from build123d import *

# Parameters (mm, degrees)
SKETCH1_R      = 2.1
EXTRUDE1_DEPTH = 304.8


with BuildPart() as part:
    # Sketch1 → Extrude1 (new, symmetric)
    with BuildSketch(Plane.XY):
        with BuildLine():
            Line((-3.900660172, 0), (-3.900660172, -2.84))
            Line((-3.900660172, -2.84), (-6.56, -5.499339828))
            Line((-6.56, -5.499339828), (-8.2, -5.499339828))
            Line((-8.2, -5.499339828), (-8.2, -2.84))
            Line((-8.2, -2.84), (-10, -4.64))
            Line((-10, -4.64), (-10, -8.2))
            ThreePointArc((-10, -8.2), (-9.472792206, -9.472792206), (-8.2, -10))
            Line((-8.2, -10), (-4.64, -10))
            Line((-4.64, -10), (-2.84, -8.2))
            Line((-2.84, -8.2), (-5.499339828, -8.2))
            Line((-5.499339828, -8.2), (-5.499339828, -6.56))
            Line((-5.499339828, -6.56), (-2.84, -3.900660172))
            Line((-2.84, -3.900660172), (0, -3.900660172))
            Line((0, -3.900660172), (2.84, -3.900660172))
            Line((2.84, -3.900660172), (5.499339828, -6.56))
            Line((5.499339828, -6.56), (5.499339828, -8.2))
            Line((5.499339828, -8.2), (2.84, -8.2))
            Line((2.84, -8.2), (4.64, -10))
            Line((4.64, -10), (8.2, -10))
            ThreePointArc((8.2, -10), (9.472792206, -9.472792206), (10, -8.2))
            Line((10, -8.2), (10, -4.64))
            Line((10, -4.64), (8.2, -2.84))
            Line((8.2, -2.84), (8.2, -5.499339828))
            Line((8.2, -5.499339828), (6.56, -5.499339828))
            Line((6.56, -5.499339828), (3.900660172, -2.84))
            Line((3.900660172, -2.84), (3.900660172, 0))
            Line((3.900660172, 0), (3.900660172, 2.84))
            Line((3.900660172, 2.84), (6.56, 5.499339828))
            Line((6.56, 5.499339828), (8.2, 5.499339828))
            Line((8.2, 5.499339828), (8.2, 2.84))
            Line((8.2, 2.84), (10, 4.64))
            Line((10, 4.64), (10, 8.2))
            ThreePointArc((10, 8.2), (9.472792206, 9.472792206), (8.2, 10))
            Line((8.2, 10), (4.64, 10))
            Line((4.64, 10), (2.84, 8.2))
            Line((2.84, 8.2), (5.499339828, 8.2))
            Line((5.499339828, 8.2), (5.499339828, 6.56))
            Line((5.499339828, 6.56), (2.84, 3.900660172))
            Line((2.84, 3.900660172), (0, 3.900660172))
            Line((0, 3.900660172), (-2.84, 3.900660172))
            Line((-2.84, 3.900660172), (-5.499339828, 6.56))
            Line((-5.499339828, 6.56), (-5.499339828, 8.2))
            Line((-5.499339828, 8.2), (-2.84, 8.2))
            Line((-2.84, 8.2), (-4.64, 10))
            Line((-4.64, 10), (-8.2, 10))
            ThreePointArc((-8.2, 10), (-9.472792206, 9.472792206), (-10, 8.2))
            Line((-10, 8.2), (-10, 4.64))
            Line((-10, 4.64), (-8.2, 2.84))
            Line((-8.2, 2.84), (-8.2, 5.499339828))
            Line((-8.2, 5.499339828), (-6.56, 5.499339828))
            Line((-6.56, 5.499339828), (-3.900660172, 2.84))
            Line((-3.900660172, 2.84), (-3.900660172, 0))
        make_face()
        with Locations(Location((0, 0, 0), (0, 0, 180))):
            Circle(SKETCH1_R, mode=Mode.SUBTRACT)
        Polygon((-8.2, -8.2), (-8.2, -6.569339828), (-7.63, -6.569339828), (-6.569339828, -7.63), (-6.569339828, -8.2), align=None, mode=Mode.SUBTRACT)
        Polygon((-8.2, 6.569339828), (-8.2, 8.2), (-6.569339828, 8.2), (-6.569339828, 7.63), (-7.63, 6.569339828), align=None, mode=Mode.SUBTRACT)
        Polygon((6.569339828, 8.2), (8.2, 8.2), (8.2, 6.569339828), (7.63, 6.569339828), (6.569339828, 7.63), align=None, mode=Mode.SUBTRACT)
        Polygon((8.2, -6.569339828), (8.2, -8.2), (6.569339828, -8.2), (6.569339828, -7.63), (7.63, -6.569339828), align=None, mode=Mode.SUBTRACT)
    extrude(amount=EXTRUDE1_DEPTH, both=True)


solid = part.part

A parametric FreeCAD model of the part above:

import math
import FreeCAD as App
import Part
import Sketcher

V = App.Vector
Q = App.Units.Quantity

doc = App.newDocument("Part")
params = doc.addObject("Spreadsheet::Sheet", "Params")
for row, (alias, value) in enumerate([
    ("sketch1_diameter", "4.2 mm"),
    ("sketch1_radius", "1.8 mm"),
    ("sketch1_length", "1.5 mm"),
    ("sketch1_width", "1.64 mm"),
    ("sketch1_width2", "3.56 mm"),
    ("pad1_length", "609.6 mm"),
], start=1):
    params.set(f"A{row}", alias)
    params.set(f"B{row}", "=" + value)
    params.setAlias(f"B{row}", alias)

body = doc.addObject("PartDesign::Body", "Body")

# Sketch on XY plane
sketch1 = body.newObject("Sketcher::SketchObject", "Sketch")
sketch1.AttachmentSupport = (doc.getObject("XY_Plane"), [""])
sketch1.MapMode = "FlatFace"
sketch1.addGeometry([
    Part.LineSegment(V(-3.9, -2.8, 0), V(-6.6, -5.5, 0)),  # 0
    Part.LineSegment(V(-6.6, -5.5, 0), V(-8.2, -5.5, 0)),  # 1
    Part.LineSegment(V(-8.2, -5.5, 0), V(-8.2, -2.8, 0)),  # 2
    Part.LineSegment(V(-8.2, -2.8, 0), V(-10, -4.6, 0)),  # 3
    Part.LineSegment(V(-10, -4.6, 0), V(-10, -8.2, 0)),  # 4
    Part.ArcOfCircle(Part.Circle(V(-8.2, -8.2, 0), V(0, 0, 1), 1.8), math.radians(180), math.radians(270)),  # 5
    Part.LineSegment(V(-8.2, -10, 0), V(-4.6, -10, 0)),  # 6
    Part.LineSegment(V(-4.6, -10, 0), V(-2.8, -8.2, 0)),  # 7
    Part.LineSegment(V(-2.8, -8.2, 0), V(-5.5, -8.2, 0)),  # 8
    Part.LineSegment(V(-5.5, -8.2, 0), V(-5.5, -6.6, 0)),  # 9
    Part.LineSegment(V(-5.5, -6.6, 0), V(-2.8, -3.9, 0)),  # 10
    Part.LineSegment(V(-2.8, -3.9, 0), V(2.8, -3.9, 0)),  # 11
    Part.LineSegment(V(2.8, -3.9, 0), V(5.5, -6.6, 0)),  # 12
    Part.LineSegment(V(5.5, -6.6, 0), V(5.5, -8.2, 0)),  # 13
    Part.LineSegment(V(5.5, -8.2, 0), V(2.8, -8.2, 0)),  # 14
    Part.LineSegment(V(2.8, -8.2, 0), V(4.6, -10, 0)),  # 15
    Part.LineSegment(V(4.6, -10, 0), V(8.2, -10, 0)),  # 16
    Part.ArcOfCircle(Part.Circle(V(8.2, -8.2, 0), V(0, 0, 1), 1.8), math.radians(-90), math.radians(0)),  # 17
    Part.LineSegment(V(10, -8.2, 0), V(10, -4.6, 0)),  # 18
    Part.LineSegment(V(10, -4.6, 0), V(8.2, -2.8, 0)),  # 19
    Part.LineSegment(V(8.2, -2.8, 0), V(8.2, -5.5, 0)),  # 20
    Part.LineSegment(V(8.2, -5.5, 0), V(6.6, -5.5, 0)),  # 21
    Part.LineSegment(V(6.6, -5.5, 0), V(3.9, -2.8, 0)),  # 22
    Part.LineSegment(V(3.9, -2.8, 0), V(3.9, 2.8, 0)),  # 23
    Part.LineSegment(V(3.9, 2.8, 0), V(6.6, 5.5, 0)),  # 24
    Part.LineSegment(V(6.6, 5.5, 0), V(8.2, 5.5, 0)),  # 25
    Part.LineSegment(V(8.2, 5.5, 0), V(8.2, 2.8, 0)),  # 26
    Part.LineSegment(V(8.2, 2.8, 0), V(10, 4.6, 0)),  # 27
    Part.LineSegment(V(10, 4.6, 0), V(10, 8.2, 0)),  # 28
    Part.ArcOfCircle(Part.Circle(V(8.2, 8.2, 0), V(0, 0, 1), 1.8), math.radians(0), math.radians(90)),  # 29
    Part.LineSegment(V(8.2, 10, 0), V(4.6, 10, 0)),  # 30
    Part.LineSegment(V(4.6, 10, 0), V(2.8, 8.2, 0)),  # 31
    Part.LineSegment(V(2.8, 8.2, 0), V(5.5, 8.2, 0)),  # 32
    Part.LineSegment(V(5.5, 8.2, 0), V(5.5, 6.6, 0)),  # 33
    Part.LineSegment(V(5.5, 6.6, 0), V(2.8, 3.9, 0)),  # 34
    Part.LineSegment(V(2.8, 3.9, 0), V(-2.8, 3.9, 0)),  # 35
    Part.LineSegment(V(-2.8, 3.9, 0), V(-5.5, 6.6, 0)),  # 36
    Part.LineSegment(V(-5.5, 6.6, 0), V(-5.5, 8.2, 0)),  # 37
    Part.LineSegment(V(-5.5, 8.2, 0), V(-2.8, 8.2, 0)),  # 38
    Part.LineSegment(V(-2.8, 8.2, 0), V(-4.6, 10, 0)),  # 39
    Part.LineSegment(V(-4.6, 10, 0), V(-8.2, 10, 0)),  # 40
    Part.ArcOfCircle(Part.Circle(V(-8.2, 8.2, 0), V(0, 0, 1), 1.8), math.radians(90), math.radians(180)),  # 41
    Part.LineSegment(V(-10, 8.2, 0), V(-10, 4.6, 0)),  # 42
    Part.LineSegment(V(-10, 4.6, 0), V(-8.2, 2.8, 0)),  # 43
    Part.LineSegment(V(-8.2, 2.8, 0), V(-8.2, 5.5, 0)),  # 44
    Part.LineSegment(V(-8.2, 5.5, 0), V(-6.6, 5.5, 0)),  # 45
    Part.LineSegment(V(-6.6, 5.5, 0), V(-3.9, 2.8, 0)),  # 46
    Part.LineSegment(V(-3.9, 2.8, 0), V(-3.9, -2.8, 0)),  # 47
    Part.LineSegment(V(-6.6, -8.2, 0), V(-8.2, -8.2, 0)),  # 48
    Part.LineSegment(V(-8.2, -8.2, 0), V(-8.2, -6.6, 0)),  # 49
    Part.LineSegment(V(-8.2, -6.6, 0), V(-7.6, -6.6, 0)),  # 50
    Part.LineSegment(V(-7.6, -6.6, 0), V(-6.6, -7.6, 0)),  # 51
    Part.LineSegment(V(-6.6, -7.6, 0), V(-6.6, -8.2, 0)),  # 52
    Part.LineSegment(V(7.6, -6.6, 0), V(8.2, -6.6, 0)),  # 53
    Part.LineSegment(V(8.2, -6.6, 0), V(8.2, -8.2, 0)),  # 54
    Part.LineSegment(V(8.2, -8.2, 0), V(6.6, -8.2, 0)),  # 55
    Part.LineSegment(V(6.6, -8.2, 0), V(6.6, -7.6, 0)),  # 56
    Part.LineSegment(V(6.6, -7.6, 0), V(7.6, -6.6, 0)),  # 57
    Part.LineSegment(V(-7.6, 6.6, 0), V(-8.2, 6.6, 0)),  # 58
    Part.LineSegment(V(-8.2, 6.6, 0), V(-8.2, 8.2, 0)),  # 59
    Part.LineSegment(V(-8.2, 8.2, 0), V(-6.6, 8.2, 0)),  # 60
    Part.LineSegment(V(-6.6, 8.2, 0), V(-6.6, 7.6, 0)),  # 61
    Part.LineSegment(V(-6.6, 7.6, 0), V(-7.6, 6.6, 0)),  # 62
    Part.Circle(V(0, 0, 0), V(0, 0, 1), 2.1),  # 63
    Part.LineSegment(V(6.6, 7.6, 0), V(6.6, 8.2, 0)),  # 64
    Part.LineSegment(V(6.6, 8.2, 0), V(8.2, 8.2, 0)),  # 65
    Part.LineSegment(V(8.2, 8.2, 0), V(8.2, 6.6, 0)),  # 66
    Part.LineSegment(V(8.2, 6.6, 0), V(7.6, 6.6, 0)),  # 67
    Part.LineSegment(V(7.6, 6.6, 0), V(6.6, 7.6, 0)),  # 68
], False)
sketch1.addConstraint([
    Sketcher.Constraint("Coincident", 0, 2, 1, 1),
    Sketcher.Constraint("Coincident", 1, 2, 2, 1),
    Sketcher.Constraint("Coincident", 2, 2, 3, 1),
    Sketcher.Constraint("Coincident", 3, 2, 4, 1),
    Sketcher.Constraint("Tangent", 4, 2, 5, 1),
    Sketcher.Constraint("Tangent", 5, 2, 6, 1),
    Sketcher.Constraint("Coincident", 6, 2, 7, 1),
    Sketcher.Constraint("Coincident", 7, 2, 8, 1),
    Sketcher.Constraint("Coincident", 8, 2, 9, 1),
    Sketcher.Constraint("Coincident", 9, 2, 10, 1),
    Sketcher.Constraint("Coincident", 10, 2, 11, 1),
    Sketcher.Constraint("Coincident", 11, 2, 12, 1),
    Sketcher.Constraint("Coincident", 12, 2, 13, 1),
    Sketcher.Constraint("Coincident", 13, 2, 14, 1),
    Sketcher.Constraint("Coincident", 14, 2, 15, 1),
    Sketcher.Constraint("Coincident", 15, 2, 16, 1),
    Sketcher.Constraint("Tangent", 16, 2, 17, 1),
    Sketcher.Constraint("Tangent", 17, 2, 18, 1),
    Sketcher.Constraint("Coincident", 18, 2, 19, 1),
    Sketcher.Constraint("Coincident", 19, 2, 20, 1),
    Sketcher.Constraint("Coincident", 20, 2, 21, 1),
    Sketcher.Constraint("Coincident", 21, 2, 22, 1),
    Sketcher.Constraint("Coincident", 22, 2, 23, 1),
    Sketcher.Constraint("Coincident", 23, 2, 24, 1),
    Sketcher.Constraint("Coincident", 24, 2, 25, 1),
    Sketcher.Constraint("Coincident", 25, 2, 26, 1),
    Sketcher.Constraint("Coincident", 26, 2, 27, 1),
    Sketcher.Constraint("Coincident", 27, 2, 28, 1),
    Sketcher.Constraint("Tangent", 28, 2, 29, 1),
    Sketcher.Constraint("Tangent", 29, 2, 30, 1),
    Sketcher.Constraint("Coincident", 30, 2, 31, 1),
    Sketcher.Constraint("Coincident", 31, 2, 32, 1),
    Sketcher.Constraint("Coincident", 32, 2, 33, 1),
    Sketcher.Constraint("Coincident", 33, 2, 34, 1),
    Sketcher.Constraint("Coincident", 34, 2, 35, 1),
    Sketcher.Constraint("Coincident", 35, 2, 36, 1),
    Sketcher.Constraint("Coincident", 36, 2, 37, 1),
    Sketcher.Constraint("Coincident", 37, 2, 38, 1),
    Sketcher.Constraint("Coincident", 38, 2, 39, 1),
    Sketcher.Constraint("Coincident", 39, 2, 40, 1),
    Sketcher.Constraint("Tangent", 40, 2, 41, 1),
    Sketcher.Constraint("Tangent", 41, 2, 42, 1),
    Sketcher.Constraint("Coincident", 42, 2, 43, 1),
    Sketcher.Constraint("Coincident", 43, 2, 44, 1),
    Sketcher.Constraint("Coincident", 44, 2, 45, 1),
    Sketcher.Constraint("Coincident", 45, 2, 46, 1),
    Sketcher.Constraint("Coincident", 46, 2, 47, 1),
    Sketcher.Constraint("Coincident", 47, 2, 0, 1),
    Sketcher.Constraint("Coincident", 48, 2, 49, 1),
    Sketcher.Constraint("Coincident", 49, 2, 50, 1),
    Sketcher.Constraint("Coincident", 50, 2, 51, 1),
    Sketcher.Constraint("Coincident", 51, 2, 52, 1),
    Sketcher.Constraint("Coincident", 52, 2, 48, 1),
    Sketcher.Constraint("Coincident", 53, 2, 54, 1),
    Sketcher.Constraint("Coincident", 54, 2, 55, 1),
    Sketcher.Constraint("Coincident", 55, 2, 56, 1),
    Sketcher.Constraint("Coincident", 56, 2, 57, 1),
    Sketcher.Constraint("Coincident", 57, 2, 53, 1),
    Sketcher.Constraint("Coincident", 58, 2, 59, 1),
    Sketcher.Constraint("Coincident", 59, 2, 60, 1),
    Sketcher.Constraint("Coincident", 60, 2, 61, 1),
    Sketcher.Constraint("Coincident", 61, 2, 62, 1),
    Sketcher.Constraint("Coincident", 62, 2, 58, 1),
    Sketcher.Constraint("Coincident", 64, 2, 65, 1),
    Sketcher.Constraint("Coincident", 65, 2, 66, 1),
    Sketcher.Constraint("Coincident", 66, 2, 67, 1),
    Sketcher.Constraint("Coincident", 67, 2, 68, 1),
    Sketcher.Constraint("Coincident", 68, 2, 64, 1),
    Sketcher.Constraint("Horizontal", 1),
    Sketcher.Constraint("Vertical", 2),
    Sketcher.Constraint("Vertical", 4),
    Sketcher.Constraint("Horizontal", 6),
    Sketcher.Constraint("Horizontal", 8),
    Sketcher.Constraint("Vertical", 9),
    Sketcher.Constraint("Horizontal", 11),
    Sketcher.Constraint("Vertical", 13),
    Sketcher.Constraint("Horizontal", 14),
    Sketcher.Constraint("Horizontal", 16),
    Sketcher.Constraint("Vertical", 18),
    Sketcher.Constraint("Vertical", 20),
    Sketcher.Constraint("Horizontal", 21),
    Sketcher.Constraint("Vertical", 23),
    Sketcher.Constraint("Horizontal", 25),
    Sketcher.Constraint("Vertical", 26),
    Sketcher.Constraint("Vertical", 28),
    Sketcher.Constraint("Horizontal", 30),
    Sketcher.Constraint("Horizontal", 32),
    Sketcher.Constraint("Vertical", 33),
    Sketcher.Constraint("Horizontal", 35),
    Sketcher.Constraint("Vertical", 37),
    Sketcher.Constraint("Horizontal", 38),
    Sketcher.Constraint("Horizontal", 40),
    Sketcher.Constraint("Vertical", 42),
    Sketcher.Constraint("Vertical", 44),
    Sketcher.Constraint("Horizontal", 45),
    Sketcher.Constraint("Vertical", 47),
    Sketcher.Constraint("Horizontal", 48),
    Sketcher.Constraint("Vertical", 49),
    Sketcher.Constraint("Horizontal", 50),
    Sketcher.Constraint("Vertical", 52),
    Sketcher.Constraint("Horizontal", 53),
    Sketcher.Constraint("Vertical", 54),
    Sketcher.Constraint("Horizontal", 55),
    Sketcher.Constraint("Vertical", 56),
    Sketcher.Constraint("Horizontal", 58),
    Sketcher.Constraint("Vertical", 59),
    Sketcher.Constraint("Horizontal", 60),
    Sketcher.Constraint("Vertical", 61),
    Sketcher.Constraint("Vertical", 64),
    Sketcher.Constraint("Horizontal", 65),
    Sketcher.Constraint("Vertical", 66),
    Sketcher.Constraint("Horizontal", 67),
    Sketcher.Constraint("Coincident", 63, 3, -1, 1),
    Sketcher.Constraint("Coincident", 48, 2, 5, 3),
    Sketcher.Constraint("Coincident", 54, 2, 17, 3),
    Sketcher.Constraint("Coincident", 59, 2, 41, 3),
    Sketcher.Constraint("Coincident", 65, 2, 29, 3),
    Sketcher.Constraint("Equal", 5, 17),
    Sketcher.Constraint("Equal", 17, 29),
    Sketcher.Constraint("Equal", 29, 41),
    Sketcher.Constraint("Symmetric", 5, 3, 29, 3, -1, 1),
    Sketcher.Constraint("Symmetric", 17, 3, 41, 3, -1, 1),
    Sketcher.Constraint("Symmetric", 0, 2, 24, 2, -1, 1),
    Sketcher.Constraint("Symmetric", 2, 2, 26, 2, -1, 1),
    Sketcher.Constraint("Symmetric", 7, 2, 31, 2, -1, 1),
    Sketcher.Constraint("Symmetric", 9, 2, 33, 2, -1, 1),
    Sketcher.Constraint("Symmetric", 10, 2, 34, 2, -1, 1),
    Sketcher.Constraint("Symmetric", 12, 2, 36, 2, -1, 1),
    Sketcher.Constraint("Symmetric", 14, 2, 38, 2, -1, 1),
    Sketcher.Constraint("Symmetric", 19, 2, 43, 2, -1, 1),
    Sketcher.Constraint("Symmetric", 21, 2, 45, 2, -1, 1),
    Sketcher.Constraint("Symmetric", 22, 2, 46, 2, -1, 1),
    Sketcher.Constraint("Symmetric", 56, 2, 61, 2, -1, 1),
    Sketcher.Constraint("Symmetric", 57, 2, 62, 2, -1, 1),
    Sketcher.Constraint("Symmetric", 50, 2, 67, 2, -1, 1),
    Sketcher.Constraint("Symmetric", 51, 2, 68, 2, -1, 1),
    Sketcher.Constraint("Symmetric", 5, 3, 17, 3, -2),
    Sketcher.Constraint("Symmetric", 9, 2, 12, 2, -2),
    Sketcher.Constraint("Symmetric", 7, 2, 14, 2, -2),
    Sketcher.Constraint("Symmetric", 2, 2, 19, 2, -2),
    Sketcher.Constraint("Symmetric", 0, 2, 21, 2, -2),
    Sketcher.Constraint("Symmetric", 51, 2, 56, 2, -2),
    Sketcher.Constraint("Symmetric", 50, 2, 57, 2, -2),
    Sketcher.Constraint("Parallel", 0, 3),
    Sketcher.Constraint("Parallel", 3, 7),
    Sketcher.Constraint("Parallel", 7, 10),
    Sketcher.Constraint("Perpendicular", 10, 12),
    Sketcher.Constraint("Parallel", 12, 15),
    Sketcher.Constraint("Parallel", 15, 19),
    Sketcher.Constraint("Parallel", 19, 22),
    Sketcher.Constraint("Perpendicular", 22, 24),
    Sketcher.Constraint("Parallel", 24, 27),
    Sketcher.Constraint("Parallel", 27, 31),
    Sketcher.Constraint("Perpendicular", 34, 36),
    Sketcher.Constraint("Parallel", 36, 39),
    Sketcher.Constraint("Parallel", 39, 43),
    Sketcher.Constraint("Parallel", 46, 51),
    Sketcher.Constraint("Perpendicular", 51, 57),
    Sketcher.Constraint("Horizontal", 4, 2, 7, 2),
    Sketcher.Constraint("Horizontal", 19, 2, 22, 2),
    Sketcher.Constraint("Vertical", 41, 3, 1, 2),
    Sketcher.Constraint("Vertical", 7, 2, 10, 2),
    Sketcher.Constraint("Equal", 38, 2),
    Sketcher.Constraint("Equal", 40, 4),
    Sketcher.Constraint("Equal", 45, 9),
    Sketcher.Constraint("Equal", 35, 23),
    Sketcher.Constraint("Equal", 65, 49),
    Sketcher.Constraint("Diameter", 63, Q("4.2 mm")),
    Sketcher.Constraint("Radius", 5, Q("1.8 mm")),
    Sketcher.Constraint("DistanceX", 3, 2, -1, 1, Q("10 mm")),
    Sketcher.Constraint("Distance", 51, Q("1.5 mm")),
    Sketcher.Constraint("DistanceX", 1, 2, 1, 1, Q("1.64 mm")),
    Sketcher.Constraint("DistanceX", 6, 1, 6, 2, Q("3.56 mm")),
    Sketcher.Constraint("DistanceX", 50, 1, 50, 2, Q("0.57 mm")),
    Sketcher.Constraint("DistanceX", 8, 2, 8, 1, Q("2.65934 mm")),
])
sketch1.setExpression("Constraints[167]", "Params.sketch1_diameter")
sketch1.setExpression("Constraints[168]", "Params.sketch1_radius")
sketch1.setExpression("Constraints[170]", "Params.sketch1_length")
sketch1.setExpression("Constraints[171]", "Params.sketch1_width")
sketch1.setExpression("Constraints[172]", "Params.sketch1_width2")
pad1 = body.newObject("PartDesign::Pad", "Pad")
pad1.Profile = sketch1
pad1.setExpression("Length", "Params.pad1_length")
pad1.Midplane = True

doc.recompute()
